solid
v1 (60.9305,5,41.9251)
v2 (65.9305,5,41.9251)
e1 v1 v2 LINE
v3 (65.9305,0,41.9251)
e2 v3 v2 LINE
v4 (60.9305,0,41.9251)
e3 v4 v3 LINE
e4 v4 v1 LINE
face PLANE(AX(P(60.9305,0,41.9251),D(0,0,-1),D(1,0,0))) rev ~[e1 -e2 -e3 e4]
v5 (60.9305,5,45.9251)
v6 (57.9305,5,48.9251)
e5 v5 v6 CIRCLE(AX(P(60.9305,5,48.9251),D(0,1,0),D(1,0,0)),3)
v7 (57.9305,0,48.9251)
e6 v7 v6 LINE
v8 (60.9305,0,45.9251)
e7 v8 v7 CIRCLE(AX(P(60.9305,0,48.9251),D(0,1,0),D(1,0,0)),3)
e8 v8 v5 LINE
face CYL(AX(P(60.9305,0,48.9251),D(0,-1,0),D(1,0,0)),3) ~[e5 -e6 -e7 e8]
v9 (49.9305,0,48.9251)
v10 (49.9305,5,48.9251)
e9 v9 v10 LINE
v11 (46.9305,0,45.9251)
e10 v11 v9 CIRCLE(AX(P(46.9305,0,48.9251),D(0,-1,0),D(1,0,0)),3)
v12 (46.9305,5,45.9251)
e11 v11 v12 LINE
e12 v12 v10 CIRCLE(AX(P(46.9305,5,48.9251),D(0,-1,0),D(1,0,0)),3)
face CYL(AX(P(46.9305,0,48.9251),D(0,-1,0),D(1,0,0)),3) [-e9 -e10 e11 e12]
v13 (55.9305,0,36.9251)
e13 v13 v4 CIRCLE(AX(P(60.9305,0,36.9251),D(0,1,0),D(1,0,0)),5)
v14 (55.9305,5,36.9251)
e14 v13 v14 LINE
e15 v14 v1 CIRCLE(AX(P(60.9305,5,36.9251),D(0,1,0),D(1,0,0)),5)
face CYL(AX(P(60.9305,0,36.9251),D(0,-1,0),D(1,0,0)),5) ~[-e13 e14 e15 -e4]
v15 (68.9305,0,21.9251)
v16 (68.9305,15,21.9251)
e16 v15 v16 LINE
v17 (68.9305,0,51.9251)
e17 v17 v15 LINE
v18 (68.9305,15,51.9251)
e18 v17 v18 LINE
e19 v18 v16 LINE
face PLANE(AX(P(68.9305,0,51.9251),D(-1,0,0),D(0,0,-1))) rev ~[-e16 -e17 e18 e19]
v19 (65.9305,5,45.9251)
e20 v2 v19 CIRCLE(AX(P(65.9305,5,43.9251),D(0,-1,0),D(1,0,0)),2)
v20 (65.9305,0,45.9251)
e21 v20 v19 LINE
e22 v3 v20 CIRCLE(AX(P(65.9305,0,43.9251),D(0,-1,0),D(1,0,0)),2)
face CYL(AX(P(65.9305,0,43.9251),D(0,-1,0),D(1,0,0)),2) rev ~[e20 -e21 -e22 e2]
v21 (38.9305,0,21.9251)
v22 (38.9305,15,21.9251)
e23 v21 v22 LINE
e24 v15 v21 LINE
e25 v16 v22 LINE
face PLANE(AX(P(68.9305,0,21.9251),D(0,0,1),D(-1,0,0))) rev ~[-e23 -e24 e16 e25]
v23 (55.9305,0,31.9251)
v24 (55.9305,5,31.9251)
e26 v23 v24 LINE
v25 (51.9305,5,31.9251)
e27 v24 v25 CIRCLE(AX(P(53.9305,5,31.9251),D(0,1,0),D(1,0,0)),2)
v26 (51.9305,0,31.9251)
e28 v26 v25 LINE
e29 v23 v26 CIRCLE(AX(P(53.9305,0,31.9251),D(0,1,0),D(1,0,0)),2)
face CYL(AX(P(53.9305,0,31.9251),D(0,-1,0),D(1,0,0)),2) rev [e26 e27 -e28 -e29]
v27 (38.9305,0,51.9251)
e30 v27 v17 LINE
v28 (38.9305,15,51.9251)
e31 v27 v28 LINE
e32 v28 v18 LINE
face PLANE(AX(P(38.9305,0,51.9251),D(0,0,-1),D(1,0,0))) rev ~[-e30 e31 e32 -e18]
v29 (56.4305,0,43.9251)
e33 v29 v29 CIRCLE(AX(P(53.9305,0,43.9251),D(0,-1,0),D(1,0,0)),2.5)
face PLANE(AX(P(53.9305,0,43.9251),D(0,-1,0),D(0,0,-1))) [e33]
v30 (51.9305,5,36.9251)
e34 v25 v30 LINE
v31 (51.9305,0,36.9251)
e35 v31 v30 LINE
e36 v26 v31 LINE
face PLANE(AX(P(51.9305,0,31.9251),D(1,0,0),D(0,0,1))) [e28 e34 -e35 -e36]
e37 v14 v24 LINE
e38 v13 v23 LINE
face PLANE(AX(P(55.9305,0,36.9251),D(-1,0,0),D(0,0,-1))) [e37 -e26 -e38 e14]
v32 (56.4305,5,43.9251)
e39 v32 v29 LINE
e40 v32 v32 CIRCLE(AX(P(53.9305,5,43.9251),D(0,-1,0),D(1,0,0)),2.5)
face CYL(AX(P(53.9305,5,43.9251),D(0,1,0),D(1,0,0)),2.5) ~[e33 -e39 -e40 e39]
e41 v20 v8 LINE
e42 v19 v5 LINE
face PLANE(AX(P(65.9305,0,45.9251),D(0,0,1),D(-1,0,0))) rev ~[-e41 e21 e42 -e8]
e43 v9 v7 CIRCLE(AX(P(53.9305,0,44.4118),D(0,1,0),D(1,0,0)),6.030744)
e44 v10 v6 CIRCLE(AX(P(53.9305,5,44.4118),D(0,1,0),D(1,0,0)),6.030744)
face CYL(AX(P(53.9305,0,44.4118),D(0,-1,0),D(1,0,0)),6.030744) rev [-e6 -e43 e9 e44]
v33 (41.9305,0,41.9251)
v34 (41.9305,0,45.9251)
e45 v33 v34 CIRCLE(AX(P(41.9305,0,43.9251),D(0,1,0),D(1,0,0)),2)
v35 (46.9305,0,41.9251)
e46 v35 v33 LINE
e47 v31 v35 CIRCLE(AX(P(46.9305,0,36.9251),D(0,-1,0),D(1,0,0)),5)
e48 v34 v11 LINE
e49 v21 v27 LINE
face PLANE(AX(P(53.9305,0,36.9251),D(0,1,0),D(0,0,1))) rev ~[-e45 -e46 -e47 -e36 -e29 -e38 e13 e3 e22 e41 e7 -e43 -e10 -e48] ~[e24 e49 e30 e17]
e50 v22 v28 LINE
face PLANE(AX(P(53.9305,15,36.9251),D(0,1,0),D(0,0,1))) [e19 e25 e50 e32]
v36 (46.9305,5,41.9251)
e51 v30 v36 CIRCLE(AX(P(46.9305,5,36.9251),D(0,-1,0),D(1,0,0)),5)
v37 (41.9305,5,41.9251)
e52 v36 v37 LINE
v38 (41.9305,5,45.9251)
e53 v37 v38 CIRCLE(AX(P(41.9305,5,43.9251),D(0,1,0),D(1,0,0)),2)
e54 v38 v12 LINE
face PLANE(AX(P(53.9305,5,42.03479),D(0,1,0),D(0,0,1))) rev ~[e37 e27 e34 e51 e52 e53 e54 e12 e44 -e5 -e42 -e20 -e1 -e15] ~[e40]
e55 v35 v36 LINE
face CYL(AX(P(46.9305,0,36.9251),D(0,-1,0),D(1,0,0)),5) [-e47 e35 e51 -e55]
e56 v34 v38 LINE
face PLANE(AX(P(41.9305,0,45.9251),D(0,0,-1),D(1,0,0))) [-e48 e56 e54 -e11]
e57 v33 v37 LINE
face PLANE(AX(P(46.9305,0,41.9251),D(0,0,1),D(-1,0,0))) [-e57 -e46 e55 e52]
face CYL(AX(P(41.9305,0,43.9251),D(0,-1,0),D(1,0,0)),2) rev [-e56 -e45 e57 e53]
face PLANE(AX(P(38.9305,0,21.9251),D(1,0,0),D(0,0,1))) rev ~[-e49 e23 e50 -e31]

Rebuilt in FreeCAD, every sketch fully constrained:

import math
import FreeCAD as App
import Part
import Sketcher
from FreeCAD import Vector
Q = App.Units.Quantity

doc = App.newDocument("Part")
body = doc.addObject("PartDesign::Body", "Body")

sketch1 = doc.addObject("Sketcher::SketchObject", "Sketch")
body.addObject(sketch1)
sketch1.AttachmentSupport = (doc.XZ_Plane, [""])
sketch1.MapMode = "FlatFace"
sketch1.addGeometry([
    Part.LineSegment(Vector(69, 52, 0), Vector(39, 52, 0)),
    Part.LineSegment(Vector(39, 52, 0), Vector(39, 22, 0)),
    Part.LineSegment(Vector(39, 22, 0), Vector(69, 22, 0)),
    Part.LineSegment(Vector(69, 22, 0), Vector(69, 52, 0)),
], False)
sketch1.addConstraint([
    Sketcher.Constraint("Coincident", 0, 2, 1, 1),
    Sketcher.Constraint("Coincident", 1, 2, 2, 1),
    Sketcher.Constraint("Coincident", 2, 2, 3, 1),
    Sketcher.Constraint("Coincident", 3, 2, 0, 1),
    Sketcher.Constraint("Horizontal", 0),
    Sketcher.Constraint("Vertical", 1),
    Sketcher.Constraint("Horizontal", 2),
    Sketcher.Constraint("Vertical", 3),
    Sketcher.Constraint("Equal", 2, 1),
    Sketcher.Constraint("DistanceX", 0, 2, 0, 1, Q("30 mm")),
    Sketcher.Constraint("DistanceX", -1, 1, 0, 2, Q("38.9305 mm")),
    Sketcher.Constraint("DistanceY", -1, 1, 0, 2, Q("51.925 mm")),
])
pad1 = doc.addObject("PartDesign::Pad", "Pad")
body.addObject(pad1)
pad1.Profile = sketch1
pad1.Length = 15
pad1.Reversed = True

sketch2 = doc.addObject("Sketcher::SketchObject", "Sketch001")
body.addObject(sketch2)
sketch2.AttachmentSupport = (doc.XZ_Plane, [""])
sketch2.MapMode = "FlatFace"
sketch2.addGeometry([
    Part.LineSegment(Vector(55.9, 31.9, 0), Vector(55.9, 36.9, 0)),
    Part.ArcOfCircle(Part.Circle(Vector(60.9, 36.9, 0), Vector(0, 0, 1), 5), math.radians(90), math.radians(180)),
    Part.LineSegment(Vector(60.9, 41.9, 0), Vector(65.9, 41.9, 0)),
    Part.ArcOfCircle(Part.Circle(Vector(65.9, 43.9, 0), Vector(0, 0, 1), 2), math.radians(-90), math.radians(90)),
    Part.LineSegment(Vector(65.9, 45.9, 0), Vector(60.9, 45.9, 0)),
    Part.ArcOfCircle(Part.Circle(Vector(60.9, 48.9, 0), Vector(0, 0, 1), 3), math.radians(180), math.radians(270)),
    Part.ArcOfCircle(Part.Circle(Vector(53.9, 44.4, 0), Vector(0, 0, 1), 6), math.radians(48), math.radians(132)),
    Part.ArcOfCircle(Part.Circle(Vector(46.9, 48.9, 0), Vector(0, 0, 1), 3), math.radians(-90), math.radians(0)),
    Part.LineSegment(Vector(46.9, 45.9, 0), Vector(41.9, 45.9, 0)),
    Part.ArcOfCircle(Part.Circle(Vector(41.9, 43.9, 0), Vector(0, 0, 1), 2), math.radians(90), math.radians(270)),
    Part.LineSegment(Vector(41.9, 41.9, 0), Vector(46.9, 41.9, 0)),
    Part.ArcOfCircle(Part.Circle(Vector(46.9, 36.9, 0), Vector(0, 0, 1), 5), math.radians(0), math.radians(90)),
    Part.LineSegment(Vector(51.9, 36.9, 0), Vector(51.9, 31.9, 0)),
    Part.ArcOfCircle(Part.Circle(Vector(53.9, 31.9, 0), Vector(0, 0, 1), 2), math.radians(180), math.radians(360)),
], False)
sketch2.addConstraint([
    Sketcher.Constraint("Tangent", 0, 2, 1, 2),
    Sketcher.Constraint("Tangent", 1, 1, 2, 1),
    Sketcher.Constraint("Tangent", 2, 2, 3, 1),
    Sketcher.Constraint("Tangent", 3, 2, 4, 1),
    Sketcher.Constraint("Tangent", 4, 2, 5, 2),
    Sketcher.Constraint("Coincident", 5, 1, 6, 1),
    Sketcher.Constraint("Coincident", 6, 2, 7, 2),
    Sketcher.Constraint("Tangent", 7, 1, 8, 1),
    Sketcher.Constraint("Tangent", 8, 2, 9, 1),
    Sketcher.Constraint("Tangent", 9, 2, 10, 1),
    Sketcher.Constraint("Tangent", 10, 2, 11, 2),
    Sketcher.Constraint("Tangent", 11, 1, 12, 1),
    Sketcher.Constraint("Tangent", 12, 2, 13, 1),
    Sketcher.Constraint("Tangent", 13, 2, 0, 1),
    Sketcher.Constraint("Vertical", 0),
    Sketcher.Constraint("Horizontal", 2),
    Sketcher.Constraint("Horizontal", 4),
    Sketcher.Constraint("Horizontal", 8),
    Sketcher.Constraint("Horizontal", 10),
    Sketcher.Constraint("Vertical", 12),
    Sketcher.Constraint("Equal", 5, 7),
    Sketcher.Constraint("Equal", 3, 9),
    Sketcher.Constraint("Equal", 1, 11),
    Sketcher.Constraint("Equal", 9, 13),
    Sketcher.Constraint("Horizontal", 5, 3, 7, 3),
    Sketcher.Constraint("Horizontal", 7, 3, 5, 1),
    Sketcher.Constraint("Horizontal", 5, 1, 6, 2),
    Sketcher.Constraint("Vertical", 1, 3, 5, 3),
    Sketcher.Constraint("Vertical", 7, 3, 11, 3),
    Sketcher.Constraint("Equal", 4, 8),
    Sketcher.Constraint("Equal", 10, 0),
    Sketcher.Constraint("Radius", 3, Q("2 mm")),
    Sketcher.Constraint("Radius", 5, Q("3 mm")),
    Sketcher.Constraint("Radius", 1, Q("5 mm")),
    Sketcher.Constraint("DistanceX", 6, 3, 3, 3, Q("12 mm")),
    Sketcher.Constraint("Radius", 6, Q("6.0307 mm")),
    Sketcher.Constraint("DistanceY", -1, 1, 1, 3, Q("36.925 mm")),
    Sketcher.Constraint("DistanceX", -1, 1, 1, 3, Q("60.9305 mm")),
])
pocket1 = doc.addObject("PartDesign::Pocket", "Pocket")
body.addObject(pocket1)
pocket1.Profile = sketch2
pocket1.Length = 5

sketch3 = doc.addObject("Sketcher::SketchObject", "Sketch002")
body.addObject(sketch3)
sketch3.AttachmentSupport = (doc.XZ_Plane, [""])
sketch3.MapMode = "FlatFace"
sketch3.AttachmentOffset = App.Placement(Vector(0, 0, -5), App.Rotation())
sketch3.addGeometry(Part.Circle(Vector(53.9, 43.9, 0), Vector(0, 0, 1), 2.5), False)
sketch3.addConstraint([
    Sketcher.Constraint("Diameter", 0, Q("5 mm")),
    Sketcher.Constraint("DistanceY", -1, 1, 0, 3, Q("43.925 mm")),
    Sketcher.Constraint("DistanceX", -1, 1, 0, 3, Q("53.9305 mm")),
])
pad2 = doc.addObject("PartDesign::Pad", "Pad001")
body.addObject(pad2)
pad2.Profile = sketch3
pad2.Length = 5

doc.recompute()
